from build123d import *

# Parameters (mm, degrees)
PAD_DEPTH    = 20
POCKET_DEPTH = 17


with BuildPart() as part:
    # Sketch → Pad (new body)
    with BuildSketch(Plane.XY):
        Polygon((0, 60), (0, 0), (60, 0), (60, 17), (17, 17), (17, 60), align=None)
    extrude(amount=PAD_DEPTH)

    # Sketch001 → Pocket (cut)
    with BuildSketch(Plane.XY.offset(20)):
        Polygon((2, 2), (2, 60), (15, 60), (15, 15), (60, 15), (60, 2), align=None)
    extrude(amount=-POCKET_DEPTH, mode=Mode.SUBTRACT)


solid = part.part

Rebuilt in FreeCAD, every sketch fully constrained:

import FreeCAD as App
import Part
import Sketcher
from FreeCAD import Vector

doc = App.newDocument("Part")
body = doc.addObject("PartDesign::Body", "Body")

sketch1 = body.newObject("Sketcher::SketchObject", "Sketch")
sketch1.AttachmentSupport = (doc.getObject("XY_Plane"), [""])
sketch1.MapMode = "FlatFace"
sketch1.addGeometry([
    Part.LineSegment(Vector(0, 60, 0), Vector(0, 0, 0)),
    Part.LineSegment(Vector(0, 0, 0), Vector(60, 0, 0)),
    Part.LineSegment(Vector(60, 0, 0), Vector(60, 17, 0)),
    Part.LineSegment(Vector(60, 17, 0), Vector(17, 17, 0)),
    Part.LineSegment(Vector(17, 17, 0), Vector(17, 60, 0)),
    Part.LineSegment(Vector(17, 60, 0), Vector(0, 60, 0)),
], False)
sketch1.addConstraint([
    Sketcher.Constraint("Coincident", 0, 2, 1, 1),
    Sketcher.Constraint("Coincident", 1, 2, 2, 1),
    Sketcher.Constraint("Coincident", 2, 2, 3, 1),
    Sketcher.Constraint("Coincident", 3, 2, 4, 1),
    Sketcher.Constraint("Coincident", 4, 2, 5, 1),
    Sketcher.Constraint("Coincident", 5, 2, 0, 1),
    Sketcher.Constraint("Vertical", 0),
    Sketcher.Constraint("Horizontal", 1),
    Sketcher.Constraint("Vertical", 2),
    Sketcher.Constraint("Horizontal", 3),
    Sketcher.Constraint("Vertical", 4),
    Sketcher.Constraint("Horizontal", 5),
    Sketcher.Constraint("Coincident", 0, 2, -1, 1),
    Sketcher.Constraint("Equal", 1, 0),
    Sketcher.Constraint("Equal", 5, 2),
    Sketcher.Constraint("DistanceX", 1, 1, 1, 2, 60.0),
    Sketcher.Constraint("DistanceX", 3, 2, 3, 1, 43.0),
])
pad1 = body.newObject("PartDesign::Pad", "Pad")
pad1.Profile = sketch1
pad1.Length = 20

sketch2 = body.newObject("Sketcher::SketchObject", "Sketch001")
sketch2.AttachmentSupport = (doc.getObject("XY_Plane"), [""])
sketch2.MapMode = "FlatFace"
sketch2.AttachmentOffset = App.Placement(Vector(0, 0, 20), App.Rotation())
sketch2.addGeometry([
    Part.LineSegment(Vector(2, 60, 0), Vector(2, 2, 0)),
    Part.LineSegment(Vector(2, 2, 0), Vector(60, 2, 0)),
    Part.LineSegment(Vector(60, 2, 0), Vector(60, 15, 0)),
    Part.LineSegment(Vector(60, 15, 0), Vector(15, 15, 0)),
    Part.LineSegment(Vector(15, 15, 0), Vector(15, 60, 0)),
    Part.LineSegment(Vector(15, 60, 0), Vector(2, 60, 0)),
], False)
sketch2.addConstraint([
    Sketcher.Constraint("Coincident", 0, 2, 1, 1),
    Sketcher.Constraint("Coincident", 1, 2, 2, 1),
    Sketcher.Constraint("Coincident", 2, 2, 3, 1),
    Sketcher.Constraint("Coincident", 3, 2, 4, 1),
    Sketcher.Constraint("Coincident", 4, 2, 5, 1),
    Sketcher.Constraint("Coincident", 5, 2, 0, 1),
    Sketcher.Constraint("Vertical", 0),
    Sketcher.Constraint("Horizontal", 1),
    Sketcher.Constraint("Vertical", 2),
    Sketcher.Constraint("Horizontal", 3),
    Sketcher.Constraint("Vertical", 4),
    Sketcher.Constraint("Horizontal", 5),
    Sketcher.Constraint("Equal", 1, 0),
    Sketcher.Constraint("Equal", 5, 2),
    Sketcher.Constraint("DistanceX", 1, 1, 1, 2, 58.0),
    Sketcher.Constraint("DistanceX", 3, 2, 3, 1, 45.0),
    Sketcher.Constraint("DistanceX", -1, 1, 0, 2, 2.0),
    Sketcher.Constraint("DistanceY", -1, 1, 0, 2, 2.0),
])
pocket1 = body.newObject("PartDesign::Pocket", "Pocket")
pocket1.Profile = sketch2
pocket1.Length = 17

doc.recompute()
